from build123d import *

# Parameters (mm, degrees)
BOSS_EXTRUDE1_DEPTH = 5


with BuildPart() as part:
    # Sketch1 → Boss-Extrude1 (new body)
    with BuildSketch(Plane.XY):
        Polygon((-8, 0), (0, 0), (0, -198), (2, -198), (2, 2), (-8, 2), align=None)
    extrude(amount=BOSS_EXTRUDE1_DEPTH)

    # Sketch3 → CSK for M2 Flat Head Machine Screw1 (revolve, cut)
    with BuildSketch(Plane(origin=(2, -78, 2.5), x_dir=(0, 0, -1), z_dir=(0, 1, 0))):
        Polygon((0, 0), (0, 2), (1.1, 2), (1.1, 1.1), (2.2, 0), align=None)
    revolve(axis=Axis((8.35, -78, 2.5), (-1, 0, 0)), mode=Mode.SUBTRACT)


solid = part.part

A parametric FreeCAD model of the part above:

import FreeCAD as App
import Part
import Sketcher

V = App.Vector
Q = App.Units.Quantity

doc = App.newDocument("Part")
body = doc.addObject("PartDesign::Body", "Body")

# Sketch on XY plane
sketch1 = body.newObject("Sketcher::SketchObject", "Sketch")
sketch1.AttachmentSupport = (doc.getObject("XY_Plane"), [""])
sketch1.MapMode = "FlatFace"
sketch1.addGeometry(Part.LineSegment(V(-8, 0, 0), V(0, 0, 0)), False)
sketch1.addGeometry(Part.LineSegment(V(0, 0, 0), V(0, -198, 0)), False)
sketch1.addGeometry(Part.LineSegment(V(0, -198, 0), V(2, -198, 0)), False)
sketch1.addGeometry(Part.LineSegment(V(2, -198, 0), V(2, 2, 0)), False)
sketch1.addGeometry(Part.LineSegment(V(2, 2, 0), V(-8, 2, 0)), False)
sketch1.addGeometry(Part.LineSegment(V(-8, 2, 0), V(-8, 0, 0)), False)
sketch1.addConstraint(Sketcher.Constraint("Coincident", 0, 2, 1, 1))
sketch1.addConstraint(Sketcher.Constraint("Coincident", 1, 2, 2, 1))
sketch1.addConstraint(Sketcher.Constraint("Coincident", 2, 2, 3, 1))
sketch1.addConstraint(Sketcher.Constraint("Coincident", 3, 2, 4, 1))
sketch1.addConstraint(Sketcher.Constraint("Coincident", 4, 2, 5, 1))
sketch1.addConstraint(Sketcher.Constraint("Coincident", 5, 2, 0, 1))
sketch1.addConstraint(Sketcher.Constraint("Horizontal", 0))
sketch1.addConstraint(Sketcher.Constraint("Vertical", 1))
sketch1.addConstraint(Sketcher.Constraint("Horizontal", 2))
sketch1.addConstraint(Sketcher.Constraint("Vertical", 3))
sketch1.addConstraint(Sketcher.Constraint("Horizontal", 4))
sketch1.addConstraint(Sketcher.Constraint("Vertical", 5))
sketch1.addConstraint(Sketcher.Constraint("Coincident", 0, 2, -1, 1))
sketch1.addConstraint(Sketcher.Constraint("Equal", 2, 5))
sketch1.addConstraint(Sketcher.Constraint("DistanceX", 0, 1, 0, 2, 8.0))
sketch1.addConstraint(Sketcher.Constraint("DistanceX", 2, 1, 2, 2, 2.0))
sketch1.addConstraint(Sketcher.Constraint("DistanceY", 1, 2, 1, 1, 198.0))
pad1 = body.newObject("PartDesign::Pad", "Pad")
pad1.Profile = sketch1
pad1.Length = 5

# Sketch on XZ plane
sketch2 = body.newObject("Sketcher::SketchObject", "Sketch001")
sketch2.AttachmentSupport = (doc.getObject("XZ_Plane"), [""])
sketch2.MapMode = "FlatFace"
sketch2.AttachmentOffset = App.Placement(V(0, 0, 78), App.Rotation())
sketch2.addGeometry(Part.LineSegment(V(0, 2.5, 0), V(2, 2.5, 0)), False)
sketch2.addGeometry(Part.LineSegment(V(2, 2.5, 0), V(2, 0.3, 0)), False)
sketch2.addGeometry(Part.LineSegment(V(2, 0.3, 0), V(0.9, 1.4, 0)), False)
sketch2.addGeometry(Part.LineSegment(V(0.9, 1.4, 0), V(0, 1.4, 0)), False)
sketch2.addGeometry(Part.LineSegment(V(0, 1.4, 0), V(0, 2.5, 0)), False)
sketch2.addGeometry(Part.LineSegment(V(2, 2.5, 0), V(0, 2.5, 0)), True)  # axis
sketch2.addConstraint(Sketcher.Constraint("Coincident", 0, 2, 1, 1))
sketch2.addConstraint(Sketcher.Constraint("Coincident", 1, 2, 2, 1))
sketch2.addConstraint(Sketcher.Constraint("Coincident", 2, 2, 3, 1))
sketch2.addConstraint(Sketcher.Constraint("Coincident", 3, 2, 4, 1))
sketch2.addConstraint(Sketcher.Constraint("Coincident", 4, 2, 0, 1))
sketch2.addConstraint(Sketcher.Constraint("Horizontal", 0))
sketch2.addConstraint(Sketcher.Constraint("Vertical", 1))
sketch2.addConstraint(Sketcher.Constraint("Horizontal", 3))
sketch2.addConstraint(Sketcher.Constraint("Vertical", 4))
sketch2.addConstraint(Sketcher.Constraint("Horizontal", 5))
sketch2.addConstraint(Sketcher.Constraint("Coincident", 5, 1, 0, 2))
sketch2.addConstraint(Sketcher.Constraint("PointOnObject", 3, 2, -2))
sketch2.addConstraint(Sketcher.Constraint("PointOnObject", 5, 2, -2))
sketch2.addConstraint(Sketcher.Constraint("DistanceX", 0, 1, 0, 2, 2.0))
sketch2.addConstraint(Sketcher.Constraint("Angle", 2, Q("135 deg")))
sketch2.addConstraint(Sketcher.Constraint("DistanceX", 3, 2, 3, 1, 0.9))
sketch2.addConstraint(Sketcher.Constraint("DistanceY", 1, 2, 1, 1, 2.2))
sketch2.addConstraint(Sketcher.Constraint("DistanceY", -1, 1, 0, 2, 2.5))
groove = body.newObject("PartDesign::Groove", "Groove")
groove.Profile = sketch2
groove.ReferenceAxis = (sketch2, ["Axis0"])
groove.Angle = 360

doc.recompute()
